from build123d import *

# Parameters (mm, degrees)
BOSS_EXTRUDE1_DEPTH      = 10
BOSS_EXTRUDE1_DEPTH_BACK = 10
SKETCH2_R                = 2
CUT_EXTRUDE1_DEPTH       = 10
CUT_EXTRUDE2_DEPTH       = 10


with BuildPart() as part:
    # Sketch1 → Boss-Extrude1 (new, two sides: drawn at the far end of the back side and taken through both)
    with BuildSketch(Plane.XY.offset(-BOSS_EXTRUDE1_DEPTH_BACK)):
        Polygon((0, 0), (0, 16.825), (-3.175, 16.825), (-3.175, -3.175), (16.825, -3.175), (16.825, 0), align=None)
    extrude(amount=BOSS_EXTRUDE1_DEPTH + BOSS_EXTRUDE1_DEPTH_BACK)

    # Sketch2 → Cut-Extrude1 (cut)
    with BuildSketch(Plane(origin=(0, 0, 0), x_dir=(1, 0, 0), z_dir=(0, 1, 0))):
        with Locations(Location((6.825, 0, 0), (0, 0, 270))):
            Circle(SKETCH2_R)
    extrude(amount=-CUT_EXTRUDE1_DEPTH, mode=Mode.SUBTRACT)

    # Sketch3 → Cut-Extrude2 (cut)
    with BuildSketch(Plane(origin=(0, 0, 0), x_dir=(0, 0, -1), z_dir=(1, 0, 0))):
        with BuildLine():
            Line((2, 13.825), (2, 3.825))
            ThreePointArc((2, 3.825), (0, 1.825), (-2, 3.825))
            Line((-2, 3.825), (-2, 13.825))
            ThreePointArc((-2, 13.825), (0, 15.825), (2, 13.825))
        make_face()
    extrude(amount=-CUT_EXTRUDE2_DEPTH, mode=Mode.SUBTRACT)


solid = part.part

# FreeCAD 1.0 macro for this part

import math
import FreeCAD as App
import Part
import Sketcher

doc = App.newDocument("Part")
body = doc.addObject("PartDesign::Body", "Body")

# Sketch on XY plane
sketch1 = body.newObject("Sketcher::SketchObject", "Sketch")
sketch1.AttachmentSupport = (doc.getObject("XY_Plane"), [""])
sketch1.MapMode = "FlatFace"
sketch1.addGeometry([
    Part.LineSegment(App.Vector(0, 0, 0), App.Vector(0, 16.8, 0)),  # 0
    Part.LineSegment(App.Vector(0, 16.8, 0), App.Vector(-3.2, 16.8, 0)),  # 1
    Part.LineSegment(App.Vector(-3.2, 16.8, 0), App.Vector(-3.2, -3.2, 0)),  # 2
    Part.LineSegment(App.Vector(-3.2, -3.2, 0), App.Vector(16.8, -3.2, 0)),  # 3
    Part.LineSegment(App.Vector(16.8, -3.2, 0), App.Vector(16.8, 0, 0)),  # 4
    Part.LineSegment(App.Vector(16.8, 0, 0), App.Vector(0, 0, 0)),  # 5
], False)
sketch1.addConstraint([
    Sketcher.Constraint("Coincident", 0, 2, 1, 1),
    Sketcher.Constraint("Coincident", 1, 2, 2, 1),
    Sketcher.Constraint("Coincident", 2, 2, 3, 1),
    Sketcher.Constraint("Coincident", 3, 2, 4, 1),
    Sketcher.Constraint("Coincident", 4, 2, 5, 1),
    Sketcher.Constraint("Coincident", 5, 2, 0, 1),
    Sketcher.Constraint("Vertical", 0),
    Sketcher.Constraint("Horizontal", 1),
    Sketcher.Constraint("Vertical", 2),
    Sketcher.Constraint("Horizontal", 3),
    Sketcher.Constraint("Vertical", 4),
    Sketcher.Constraint("Horizontal", 5),
    Sketcher.Constraint("Coincident", 5, 2, -1, 1),
    Sketcher.Constraint("Equal", 5, 0),
    Sketcher.Constraint("Equal", 3, 2),
    Sketcher.Constraint("DistanceX", 3, 1, 3, 2, 20.0),
    Sketcher.Constraint("DistanceX", 1, 2, 1, 1, 3.175),
])
pad1 = body.newObject("PartDesign::Pad", "Pad")
pad1.Profile = sketch1
pad1.Type = "TwoLengths"
pad1.Length = 10
pad1.Length2 = 10

# Sketch on XZ plane
sketch2 = body.newObject("Sketcher::SketchObject", "Sketch001")
sketch2.AttachmentSupport = (doc.getObject("XZ_Plane"), [""])
sketch2.MapMode = "FlatFace"
sketch2.addGeometry(Part.Circle(App.Vector(6.8, 0, 0), App.Vector(0, 0, 1), 2), False)
sketch2.addConstraint([
    Sketcher.Constraint("PointOnObject", 0, 3, -1),
    Sketcher.Constraint("Diameter", 0, 4.0),
    Sketcher.Constraint("DistanceX", -1, 1, 0, 3, 6.825),
])
pocket1 = body.newObject("PartDesign::Pocket", "Pocket")
pocket1.Profile = sketch2
pocket1.Length = 10
pocket1.Reversed = True

# Sketch on YZ plane
sketch3 = body.newObject("Sketcher::SketchObject", "Sketch002")
sketch3.AttachmentSupport = (doc.getObject("YZ_Plane"), [""])
sketch3.MapMode = "FlatFace"
sketch3.addGeometry([
    Part.LineSegment(App.Vector(3.8, -2, 0), App.Vector(13.8, -2, 0)),
    Part.ArcOfCircle(Part.Circle(App.Vector(13.8, 0, 0), App.Vector(0, 0, 1), 2), math.radians(-90), math.radians(90)),
    Part.LineSegment(App.Vector(13.8, 2, 0), App.Vector(3.8, 2, 0)),
    Part.ArcOfCircle(Part.Circle(App.Vector(3.8, 0, 0), App.Vector(0, 0, 1), 2), math.radians(90), math.radians(270)),
], False)
sketch3.addConstraint([
    Sketcher.Constraint("Tangent", 0, 2, 1, 1),
    Sketcher.Constraint("Tangent", 1, 2, 2, 1),
    Sketcher.Constraint("Tangent", 2, 2, 3, 1),
    Sketcher.Constraint("Tangent", 3, 2, 0, 1),
    Sketcher.Constraint("Horizontal", 0),
    Sketcher.Constraint("Horizontal", 2),
    Sketcher.Constraint("PointOnObject", 1, 3, -1),
    Sketcher.Constraint("Radius", 1, 2.0),
    Sketcher.Constraint("DistanceX", 0, 1, 0, 2, 10.0),
    Sketcher.Constraint("DistanceX", -1, 1, 1, 3, 13.825),
])
pocket2 = body.newObject("PartDesign::Pocket", "Pocket001")
pocket2.Profile = sketch3
pocket2.Length = 10

doc.recompute()
